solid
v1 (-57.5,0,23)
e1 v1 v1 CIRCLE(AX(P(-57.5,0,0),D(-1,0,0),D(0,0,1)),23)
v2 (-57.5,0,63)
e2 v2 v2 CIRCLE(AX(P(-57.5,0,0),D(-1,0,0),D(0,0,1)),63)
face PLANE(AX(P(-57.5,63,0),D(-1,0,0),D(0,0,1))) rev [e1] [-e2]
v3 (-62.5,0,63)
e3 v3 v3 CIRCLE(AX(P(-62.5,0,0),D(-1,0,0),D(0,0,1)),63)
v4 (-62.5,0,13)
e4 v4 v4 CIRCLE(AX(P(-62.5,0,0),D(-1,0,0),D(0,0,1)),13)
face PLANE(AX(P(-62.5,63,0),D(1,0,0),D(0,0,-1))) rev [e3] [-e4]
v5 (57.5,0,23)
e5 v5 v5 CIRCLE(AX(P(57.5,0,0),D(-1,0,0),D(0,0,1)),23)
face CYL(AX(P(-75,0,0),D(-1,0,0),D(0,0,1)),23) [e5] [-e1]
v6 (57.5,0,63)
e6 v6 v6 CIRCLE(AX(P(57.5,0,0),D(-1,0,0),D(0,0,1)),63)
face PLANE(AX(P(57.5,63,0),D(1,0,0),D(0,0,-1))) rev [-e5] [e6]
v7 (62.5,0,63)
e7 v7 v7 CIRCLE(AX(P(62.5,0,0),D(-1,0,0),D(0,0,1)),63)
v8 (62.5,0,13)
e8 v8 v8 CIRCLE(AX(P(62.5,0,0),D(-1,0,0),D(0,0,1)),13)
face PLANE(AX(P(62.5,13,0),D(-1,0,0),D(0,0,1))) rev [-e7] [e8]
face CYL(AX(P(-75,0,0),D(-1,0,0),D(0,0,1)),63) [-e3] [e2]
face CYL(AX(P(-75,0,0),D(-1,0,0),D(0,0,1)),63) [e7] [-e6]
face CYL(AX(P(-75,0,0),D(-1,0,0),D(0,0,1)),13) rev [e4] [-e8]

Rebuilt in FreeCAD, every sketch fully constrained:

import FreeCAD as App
import Part
import Sketcher
from FreeCAD import Vector

doc = App.newDocument("Part")
body = doc.addObject("PartDesign::Body", "Body")

# Sketch on XY plane
sketch1 = body.newObject("Sketcher::SketchObject", "Sketch")
sketch1.AttachmentSupport = (doc.getObject("XY_Plane"), [""])
sketch1.MapMode = "FlatFace"
sketch1.addGeometry(Part.LineSegment(Vector(-57.5, 63, 0), Vector(-62.5, 63, 0)), False)
sketch1.addGeometry(Part.LineSegment(Vector(-62.5, 63, 0), Vector(-62.5, 13, 0)), False)
sketch1.addGeometry(Part.LineSegment(Vector(-62.5, 13, 0), Vector(62.5, 13, 0)), False)
sketch1.addGeometry(Part.LineSegment(Vector(62.5, 13, 0), Vector(62.5, 63, 0)), False)
sketch1.addGeometry(Part.LineSegment(Vector(62.5, 63, 0), Vector(57.5, 63, 0)), False)
sketch1.addGeometry(Part.LineSegment(Vector(57.5, 63, 0), Vector(57.5, 23, 0)), False)
sketch1.addGeometry(Part.LineSegment(Vector(57.5, 23, 0), Vector(-57.5, 23, 0)), False)
sketch1.addGeometry(Part.LineSegment(Vector(-57.5, 23, 0), Vector(-57.5, 63, 0)), False)
sketch1.addConstraint(Sketcher.Constraint("Coincident", 0, 2, 1, 1))
sketch1.addConstraint(Sketcher.Constraint("Coincident", 1, 2, 2, 1))
sketch1.addConstraint(Sketcher.Constraint("Coincident", 2, 2, 3, 1))
sketch1.addConstraint(Sketcher.Constraint("Coincident", 3, 2, 4, 1))
sketch1.addConstraint(Sketcher.Constraint("Coincident", 4, 2, 5, 1))
sketch1.addConstraint(Sketcher.Constraint("Coincident", 5, 2, 6, 1))
sketch1.addConstraint(Sketcher.Constraint("Coincident", 6, 2, 7, 1))
sketch1.addConstraint(Sketcher.Constraint("Coincident", 7, 2, 0, 1))
sketch1.addConstraint(Sketcher.Constraint("Horizontal", 0))
sketch1.addConstraint(Sketcher.Constraint("Vertical", 1))
sketch1.addConstraint(Sketcher.Constraint("Horizontal", 2))
sketch1.addConstraint(Sketcher.Constraint("Vertical", 3))
sketch1.addConstraint(Sketcher.Constraint("Horizontal", 4))
sketch1.addConstraint(Sketcher.Constraint("Vertical", 5))
sketch1.addConstraint(Sketcher.Constraint("Horizontal", 6))
sketch1.addConstraint(Sketcher.Constraint("Vertical", 7))
sketch1.addConstraint(Sketcher.Constraint("Symmetric", 0, 2, 3, 2, -2))
sketch1.addConstraint(Sketcher.Constraint("Equal", 0, 4))
sketch1.addConstraint(Sketcher.Constraint("DistanceX", 0, 2, 0, 1, 5.0))
sketch1.addConstraint(Sketcher.Constraint("DistanceX", 2, 1, 2, 2, 125.0))
sketch1.addConstraint(Sketcher.Constraint("DistanceY", 1, 2, 1, 1, 50.0))
sketch1.addConstraint(Sketcher.Constraint("DistanceY", 5, 2, 5, 1, 40.0))
sketch1.addConstraint(Sketcher.Constraint("DistanceY", -1, 1, 0, 2, 63.0))
revolution = body.newObject("PartDesign::Revolution", "Revolution")
revolution.Profile = sketch1
revolution.ReferenceAxis = (sketch1, ["H_Axis"])
revolution.Angle = 360

doc.recompute()
